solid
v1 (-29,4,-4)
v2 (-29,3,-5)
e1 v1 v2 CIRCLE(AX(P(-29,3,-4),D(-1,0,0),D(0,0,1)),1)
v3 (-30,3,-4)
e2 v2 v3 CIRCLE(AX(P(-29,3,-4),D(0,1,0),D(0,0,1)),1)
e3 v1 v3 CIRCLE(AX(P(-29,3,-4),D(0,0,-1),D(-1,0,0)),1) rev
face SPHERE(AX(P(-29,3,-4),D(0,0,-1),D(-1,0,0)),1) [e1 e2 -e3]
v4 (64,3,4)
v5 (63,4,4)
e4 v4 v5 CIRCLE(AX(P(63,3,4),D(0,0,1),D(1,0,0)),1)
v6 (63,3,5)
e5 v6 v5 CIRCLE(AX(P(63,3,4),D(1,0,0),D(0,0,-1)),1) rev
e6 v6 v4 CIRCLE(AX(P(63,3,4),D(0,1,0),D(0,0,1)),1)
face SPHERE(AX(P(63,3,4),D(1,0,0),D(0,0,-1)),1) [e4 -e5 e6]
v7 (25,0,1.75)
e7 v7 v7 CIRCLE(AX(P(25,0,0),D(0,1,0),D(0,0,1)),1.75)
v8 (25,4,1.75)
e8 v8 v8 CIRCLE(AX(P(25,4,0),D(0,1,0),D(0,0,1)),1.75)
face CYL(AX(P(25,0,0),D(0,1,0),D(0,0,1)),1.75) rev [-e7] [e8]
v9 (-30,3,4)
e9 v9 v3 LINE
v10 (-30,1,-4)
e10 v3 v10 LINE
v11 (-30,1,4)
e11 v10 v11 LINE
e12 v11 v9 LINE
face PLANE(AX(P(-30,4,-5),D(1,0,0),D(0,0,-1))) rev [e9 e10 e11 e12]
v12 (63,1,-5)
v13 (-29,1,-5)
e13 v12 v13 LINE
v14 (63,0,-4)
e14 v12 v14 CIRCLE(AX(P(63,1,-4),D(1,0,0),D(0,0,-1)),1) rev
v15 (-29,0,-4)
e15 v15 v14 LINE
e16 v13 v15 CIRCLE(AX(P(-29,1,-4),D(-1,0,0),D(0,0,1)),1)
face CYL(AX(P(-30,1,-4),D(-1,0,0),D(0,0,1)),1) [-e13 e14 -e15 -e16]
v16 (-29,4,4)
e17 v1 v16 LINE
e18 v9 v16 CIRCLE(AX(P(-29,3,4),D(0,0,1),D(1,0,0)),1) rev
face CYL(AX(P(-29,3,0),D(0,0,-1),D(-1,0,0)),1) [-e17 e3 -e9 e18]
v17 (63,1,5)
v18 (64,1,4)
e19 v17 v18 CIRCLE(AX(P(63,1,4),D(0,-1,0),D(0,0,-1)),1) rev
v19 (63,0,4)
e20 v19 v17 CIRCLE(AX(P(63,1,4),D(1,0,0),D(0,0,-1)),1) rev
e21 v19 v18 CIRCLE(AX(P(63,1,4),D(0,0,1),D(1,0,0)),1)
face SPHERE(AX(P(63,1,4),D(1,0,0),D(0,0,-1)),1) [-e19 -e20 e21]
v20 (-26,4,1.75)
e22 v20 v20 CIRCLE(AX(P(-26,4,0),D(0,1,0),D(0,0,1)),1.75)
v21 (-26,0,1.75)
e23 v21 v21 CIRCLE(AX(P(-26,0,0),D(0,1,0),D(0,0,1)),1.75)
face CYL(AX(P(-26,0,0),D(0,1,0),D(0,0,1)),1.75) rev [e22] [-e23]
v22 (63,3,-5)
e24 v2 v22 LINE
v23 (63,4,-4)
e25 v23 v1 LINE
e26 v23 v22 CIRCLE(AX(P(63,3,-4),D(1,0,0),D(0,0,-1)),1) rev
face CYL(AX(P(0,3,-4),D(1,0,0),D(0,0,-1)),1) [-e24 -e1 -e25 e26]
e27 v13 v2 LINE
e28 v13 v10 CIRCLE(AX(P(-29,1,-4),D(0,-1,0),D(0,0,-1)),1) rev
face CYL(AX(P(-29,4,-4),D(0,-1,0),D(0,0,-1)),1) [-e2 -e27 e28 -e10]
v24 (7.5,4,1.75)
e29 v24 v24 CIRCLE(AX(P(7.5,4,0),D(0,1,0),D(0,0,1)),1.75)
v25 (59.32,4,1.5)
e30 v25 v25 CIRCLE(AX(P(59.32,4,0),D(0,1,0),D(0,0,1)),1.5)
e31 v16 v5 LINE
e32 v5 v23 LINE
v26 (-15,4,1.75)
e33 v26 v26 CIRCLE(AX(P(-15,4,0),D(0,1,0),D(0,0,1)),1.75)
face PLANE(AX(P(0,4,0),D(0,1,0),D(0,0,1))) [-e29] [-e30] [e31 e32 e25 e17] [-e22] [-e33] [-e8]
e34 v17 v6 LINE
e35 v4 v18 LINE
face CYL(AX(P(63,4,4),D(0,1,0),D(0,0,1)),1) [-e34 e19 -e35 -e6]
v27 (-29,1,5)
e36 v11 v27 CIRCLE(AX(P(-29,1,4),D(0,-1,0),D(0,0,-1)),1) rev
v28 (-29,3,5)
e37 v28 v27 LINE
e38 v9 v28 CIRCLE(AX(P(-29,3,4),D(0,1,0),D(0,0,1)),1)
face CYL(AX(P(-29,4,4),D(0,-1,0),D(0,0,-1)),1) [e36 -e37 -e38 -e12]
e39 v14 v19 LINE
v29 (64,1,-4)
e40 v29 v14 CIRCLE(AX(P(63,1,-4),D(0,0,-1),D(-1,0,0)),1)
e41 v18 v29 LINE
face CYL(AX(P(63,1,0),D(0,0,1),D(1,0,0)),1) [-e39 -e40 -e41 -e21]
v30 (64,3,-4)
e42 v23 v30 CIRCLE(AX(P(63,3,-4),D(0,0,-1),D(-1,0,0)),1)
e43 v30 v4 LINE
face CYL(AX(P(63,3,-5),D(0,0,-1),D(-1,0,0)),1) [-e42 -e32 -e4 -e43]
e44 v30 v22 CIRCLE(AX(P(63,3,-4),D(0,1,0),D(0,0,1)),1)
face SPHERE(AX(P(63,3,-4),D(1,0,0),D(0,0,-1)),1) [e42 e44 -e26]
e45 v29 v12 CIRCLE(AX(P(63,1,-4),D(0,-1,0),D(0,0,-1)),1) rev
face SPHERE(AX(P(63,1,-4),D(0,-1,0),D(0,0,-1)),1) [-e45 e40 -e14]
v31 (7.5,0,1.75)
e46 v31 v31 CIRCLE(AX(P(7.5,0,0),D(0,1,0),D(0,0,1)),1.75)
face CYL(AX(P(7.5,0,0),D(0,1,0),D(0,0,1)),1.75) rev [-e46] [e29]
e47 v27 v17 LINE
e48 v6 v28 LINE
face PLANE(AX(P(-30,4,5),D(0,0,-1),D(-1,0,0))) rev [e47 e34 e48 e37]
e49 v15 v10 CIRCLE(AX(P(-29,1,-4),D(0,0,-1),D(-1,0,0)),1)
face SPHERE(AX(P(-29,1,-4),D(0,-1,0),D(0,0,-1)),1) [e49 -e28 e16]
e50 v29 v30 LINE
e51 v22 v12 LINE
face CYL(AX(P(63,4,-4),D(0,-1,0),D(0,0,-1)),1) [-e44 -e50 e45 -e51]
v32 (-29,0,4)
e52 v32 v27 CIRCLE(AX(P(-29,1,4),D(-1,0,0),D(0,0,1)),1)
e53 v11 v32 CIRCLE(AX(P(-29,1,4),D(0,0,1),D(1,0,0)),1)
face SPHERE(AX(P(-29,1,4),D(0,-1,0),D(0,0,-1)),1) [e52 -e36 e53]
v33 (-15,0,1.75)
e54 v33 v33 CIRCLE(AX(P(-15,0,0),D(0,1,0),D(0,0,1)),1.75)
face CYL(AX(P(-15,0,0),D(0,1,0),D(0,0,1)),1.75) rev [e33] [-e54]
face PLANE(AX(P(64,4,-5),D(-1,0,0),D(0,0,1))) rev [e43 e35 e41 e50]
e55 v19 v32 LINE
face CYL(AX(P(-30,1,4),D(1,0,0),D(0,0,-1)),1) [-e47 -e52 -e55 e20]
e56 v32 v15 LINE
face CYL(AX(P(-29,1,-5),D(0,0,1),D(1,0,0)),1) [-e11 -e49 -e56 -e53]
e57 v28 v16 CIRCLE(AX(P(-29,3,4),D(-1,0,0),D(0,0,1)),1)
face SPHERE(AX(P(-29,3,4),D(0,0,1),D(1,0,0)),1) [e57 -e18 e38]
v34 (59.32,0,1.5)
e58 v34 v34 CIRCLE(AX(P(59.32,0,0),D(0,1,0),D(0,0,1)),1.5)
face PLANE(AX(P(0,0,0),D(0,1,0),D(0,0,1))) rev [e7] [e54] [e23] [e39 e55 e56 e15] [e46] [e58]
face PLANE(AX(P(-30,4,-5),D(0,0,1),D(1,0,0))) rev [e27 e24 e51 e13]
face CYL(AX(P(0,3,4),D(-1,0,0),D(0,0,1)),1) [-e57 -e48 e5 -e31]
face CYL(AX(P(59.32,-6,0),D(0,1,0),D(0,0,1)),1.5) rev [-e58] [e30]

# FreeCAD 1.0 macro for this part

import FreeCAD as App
import Part
import Sketcher


def edges_at(feature, points):
    """Names of the edges that pass closest to the given points."""
    edges = feature.Shape.Edges
    near = lambda p: min(range(len(edges)), key=lambda i: edges[i].distToShape(Part.Vertex(*p))[0])
    return sorted({f"Edge{near(p) + 1}" for p in points})


def add_polygon(sketch, points):
    """Adds a closed chain of lines whose ends are joined by coincident constraints."""
    first, n = sketch.GeometryCount, len(points)
    for a, b in zip(points, points[1:] + points[:1]):
        sketch.addGeometry(Part.LineSegment(App.Vector(*a, 0), App.Vector(*b, 0)), False)
    for i in range(n):
        sketch.addConstraint(Sketcher.Constraint("Coincident", first + i, 2, first + (i + 1) % n, 1))

doc = App.newDocument("Part")
body = doc.addObject("PartDesign::Body", "Body")

# Sketch on XZ plane
sketch1 = body.newObject("Sketcher::SketchObject", "Sketch")
sketch1.AttachmentSupport = (doc.getObject("XZ_Plane"), [""])
sketch1.MapMode = "FlatFace"
add_polygon(sketch1, [(-30, -5), (-30, 5), (30, 5), (30, -5)])  # lines 0-3
sketch1.addConstraint([
    Sketcher.Constraint("Vertical", 0),
    Sketcher.Constraint("Horizontal", 1),
    Sketcher.Constraint("Vertical", 2),
    Sketcher.Constraint("Horizontal", 3),
    Sketcher.Constraint("Symmetric", 0, 2, 2, 2, -1, 1),
    Sketcher.Constraint("DistanceX", 1, 1, 1, 2, 60.0),
    Sketcher.Constraint("DistanceY", 0, 1, 0, 2, 10.0),
])
pad1 = body.newObject("PartDesign::Pad", "Pad")
pad1.Profile = sketch1
pad1.Length = 4
pad1.Reversed = True

# Sketch on XZ plane
sketch2 = body.newObject("Sketcher::SketchObject", "Sketch001")
sketch2.AttachmentSupport = (doc.getObject("XZ_Plane"), [""])
sketch2.MapMode = "FlatFace"
sketch2.AttachmentOffset = App.Placement(App.Vector(0, 0, -4), App.Rotation())
sketch2.addGeometry([
    Part.Circle(App.Vector(-26, 0, 0), App.Vector(0, 0, 1), 1.75),
    Part.Circle(App.Vector(7.5, 0, 0), App.Vector(0, 0, 1), 1.75),
    Part.Circle(App.Vector(25, 0, 0), App.Vector(0, 0, 1), 1.75),
    Part.Circle(App.Vector(-15, 0, 0), App.Vector(0, 0, 1), 1.75),
], False)
sketch2.addConstraint([
    Sketcher.Constraint("Equal", 0, 1),
    Sketcher.Constraint("Equal", 1, 2),
    Sketcher.Constraint("Equal", 2, 3),
    Sketcher.Constraint("PointOnObject", 0, 3, -1),
    Sketcher.Constraint("PointOnObject", 1, 3, -1),
    Sketcher.Constraint("PointOnObject", 2, 3, -1),
    Sketcher.Constraint("PointOnObject", 3, 3, -1),
    Sketcher.Constraint("Diameter", 0, 3.5),
    Sketcher.Constraint("DistanceX", 0, 3, -1, 1, 26.0),
    Sketcher.Constraint("DistanceX", -1, 1, 2, 3, 25.0),
    Sketcher.Constraint("DistanceX", 3, 3, -1, 1, 15.0),
    Sketcher.Constraint("DistanceX", -1, 1, 1, 3, 7.5),
])
pocket1 = body.newObject("PartDesign::Pocket", "Pocket")
pocket1.Profile = sketch2
pocket1.Length = 4
pocket1.Reversed = True

# Sketch on YZ plane
sketch3 = body.newObject("Sketcher::SketchObject", "Sketch002")
sketch3.AttachmentSupport = (doc.getObject("YZ_Plane"), [""])
sketch3.MapMode = "FlatFace"
sketch3.AttachmentOffset = App.Placement(App.Vector(0, 0, 30), App.Rotation())
add_polygon(sketch3, [(4, 5), (0, 5), (0, -5), (4, -5)])  # lines 0-3
sketch3.addConstraint([
    Sketcher.Constraint("Horizontal", 0),
    Sketcher.Constraint("Vertical", 1),
    Sketcher.Constraint("Horizontal", 2),
    Sketcher.Constraint("Vertical", 3),
    Sketcher.Constraint("Symmetric", 0, 2, 1, 2, -1, 1),
    Sketcher.Constraint("DistanceX", 0, 2, 0, 1, 4.0),
    Sketcher.Constraint("DistanceY", 1, 2, 1, 1, 10.0),
])
pad2 = body.newObject("PartDesign::Pad", "Pad001")
pad2.Profile = sketch3
pad2.Length = 40

# Sketch on XZ plane
sketch4 = body.newObject("Sketcher::SketchObject", "Sketch003")
sketch4.AttachmentSupport = (doc.getObject("XZ_Plane"), [""])
sketch4.MapMode = "FlatFace"
sketch4.AttachmentOffset = App.Placement(App.Vector(0, 0, -4), App.Rotation())
sketch4.addGeometry(Part.Circle(App.Vector(59.32, 0, 0), App.Vector(0, 0, 1), 1.5), False)
sketch4.addConstraint([
    Sketcher.Constraint("PointOnObject", 0, 3, -1),
    Sketcher.Constraint("Diameter", 0, 3.0),
    Sketcher.Constraint("DistanceX", -1, 1, 0, 3, 59.32),
])
pocket2 = body.newObject("PartDesign::Pocket", "Pocket001")
pocket2.Profile = sketch4
pocket2.Length = 10
pocket2.Reversed = True

# Sketch on XY plane
sketch5 = body.newObject("Sketcher::SketchObject", "Sketch004")
sketch5.AttachmentSupport = (doc.getObject("XY_Plane"), [""])
sketch5.MapMode = "FlatFace"
sketch5.AttachmentOffset = App.Placement(App.Vector(0, 0, 5), App.Rotation())
add_polygon(sketch5, [(64, 4), (64, 0), (70, 0), (70, 4)])  # lines 0-3
sketch5.addConstraint([
    Sketcher.Constraint("Vertical", 0),
    Sketcher.Constraint("Horizontal", 1),
    Sketcher.Constraint("Vertical", 2),
    Sketcher.Constraint("Horizontal", 3),
    Sketcher.Constraint("PointOnObject", 0, 2, -1),
    Sketcher.Constraint("DistanceX", 1, 1, 1, 2, 6.0),
    Sketcher.Constraint("DistanceY", 0, 2, 0, 1, 4.0),
    Sketcher.Constraint("DistanceX", -1, 1, 0, 2, 64.0),
])
pocket3 = body.newObject("PartDesign::Pocket", "Pocket002")
pocket3.Profile = sketch5
pocket3.Type = "ThroughAll"
pocket3.Midplane = True
doc.recompute()

fillet = body.newObject("PartDesign::Fillet", "Fillet")
fillet.Base = (pocket3, edges_at(pocket3, [
    (-30, 4, 0),
    (17, 4, 5),
    (17, 0, 5),
    (17, 0, -5),
    (17, 4, -5),
    (-30, 0, 0),
    (64, 0, 0),
    (64, 2, 5),
    (64, 2, -5),
    (64, 4, 0),
    (-30, 2, 5),
    (-30, 2, -5),
]))
fillet.Radius = 1

doc.recompute()
